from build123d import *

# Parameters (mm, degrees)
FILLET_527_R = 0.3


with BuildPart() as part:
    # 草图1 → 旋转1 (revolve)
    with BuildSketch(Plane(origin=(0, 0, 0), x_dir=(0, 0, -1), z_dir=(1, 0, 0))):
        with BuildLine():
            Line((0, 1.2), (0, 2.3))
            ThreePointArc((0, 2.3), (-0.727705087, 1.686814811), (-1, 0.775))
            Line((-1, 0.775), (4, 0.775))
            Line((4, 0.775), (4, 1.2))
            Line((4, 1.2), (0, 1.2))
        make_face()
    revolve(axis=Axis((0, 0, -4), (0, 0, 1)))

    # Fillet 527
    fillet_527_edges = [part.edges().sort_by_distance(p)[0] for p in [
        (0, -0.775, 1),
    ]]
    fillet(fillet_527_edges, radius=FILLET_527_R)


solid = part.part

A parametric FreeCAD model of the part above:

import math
import FreeCAD as App
import Part
import Sketcher

V = App.Vector
Q = App.Units.Quantity


def edges_at(feature, points):
    """Names of the edges that pass closest to the given points."""
    edges = feature.Shape.Edges
    near = lambda p: min(range(len(edges)), key=lambda i: edges[i].distToShape(Part.Vertex(*p))[0])
    return sorted({f"Edge{near(p) + 1}" for p in points})

doc = App.newDocument("Part")
params = doc.addObject("Spreadsheet::Sheet", "Params")
for row, (alias, value) in enumerate([
    ("sketch1_height", "5 mm"),
    ("sketch1_height2", "4 mm"),
    ("sketch1_width", "1.1 mm"),
    ("revolution_angle", "360 deg"),
    ("fillet_radius", "0.3 mm"),
], start=1):
    params.set(f"A{row}", alias)
    params.set(f"B{row}", "=" + value)
    params.setAlias(f"B{row}", alias)

body = doc.addObject("PartDesign::Body", "Body")

# Sketch on YZ plane
sketch1 = doc.addObject("Sketcher::SketchObject", "Sketch")
body.addObject(sketch1)
sketch1.AttachmentSupport = (doc.YZ_Plane, [""])
sketch1.MapMode = "FlatFace"
sketch1.addGeometry([
    Part.LineSegment(V(1.2, 0, 0), V(2.3, 0, 0)),  # 0
    Part.ArcOfCircle(Part.Circle(V(0.77, -0.66, 0), V(0, 0, 1), 1.66), math.radians(23), math.radians(90)),  # 1
    Part.LineSegment(V(0.78, 1, 0), V(0.78, -4, 0)),  # 2
    Part.LineSegment(V(0.78, -4, 0), V(1.2, -4, 0)),  # 3
    Part.LineSegment(V(1.2, -4, 0), V(1.2, 0, 0)),  # 4
], False)
sketch1.addConstraint([
    Sketcher.Constraint("Coincident", 0, 2, 1, 1),
    Sketcher.Constraint("Coincident", 1, 2, 2, 1),
    Sketcher.Constraint("Coincident", 2, 2, 3, 1),
    Sketcher.Constraint("Coincident", 3, 2, 4, 1),
    Sketcher.Constraint("Coincident", 4, 2, 0, 1),
    Sketcher.Constraint("Horizontal", 0),
    Sketcher.Constraint("Vertical", 2),
    Sketcher.Constraint("Horizontal", 3),
    Sketcher.Constraint("Vertical", 4),
    Sketcher.Constraint("PointOnObject", 0, 2, -1),
    Sketcher.Constraint("DistanceY", 2, 2, 2, 1, Q("5 mm")),
    Sketcher.Constraint("DistanceY", 4, 1, 4, 2, Q("4 mm")),
    Sketcher.Constraint("DistanceX", 0, 1, 0, 2, Q("1.1 mm")),
    Sketcher.Constraint("DistanceX", -1, 1, 0, 2, Q("2.3 mm")),
    Sketcher.Constraint("DistanceX", 3, 1, 3, 2, Q("0.425 mm")),
    Sketcher.Constraint("DistanceX", -1, 1, 1, 3, Q("0.775 mm")),
])
sketch1.setExpression("Constraints[10]", "Params.sketch1_height")
sketch1.setExpression("Constraints[11]", "Params.sketch1_height2")
sketch1.setExpression("Constraints[12]", "Params.sketch1_width")
revolution = doc.addObject("PartDesign::Revolution", "Revolution")
body.addObject(revolution)
revolution.Profile = sketch1
revolution.ReferenceAxis = (sketch1, ["V_Axis"])
revolution.setExpression("Angle", "Params.revolution_angle")
doc.recompute()

fillet = doc.addObject("PartDesign::Fillet", "Fillet")
body.addObject(fillet)
fillet.Base = (revolution, edges_at(revolution, [(0, -0.775, 1)]))
fillet.setExpression("Radius", "Params.fillet_radius")

doc.recompute()
